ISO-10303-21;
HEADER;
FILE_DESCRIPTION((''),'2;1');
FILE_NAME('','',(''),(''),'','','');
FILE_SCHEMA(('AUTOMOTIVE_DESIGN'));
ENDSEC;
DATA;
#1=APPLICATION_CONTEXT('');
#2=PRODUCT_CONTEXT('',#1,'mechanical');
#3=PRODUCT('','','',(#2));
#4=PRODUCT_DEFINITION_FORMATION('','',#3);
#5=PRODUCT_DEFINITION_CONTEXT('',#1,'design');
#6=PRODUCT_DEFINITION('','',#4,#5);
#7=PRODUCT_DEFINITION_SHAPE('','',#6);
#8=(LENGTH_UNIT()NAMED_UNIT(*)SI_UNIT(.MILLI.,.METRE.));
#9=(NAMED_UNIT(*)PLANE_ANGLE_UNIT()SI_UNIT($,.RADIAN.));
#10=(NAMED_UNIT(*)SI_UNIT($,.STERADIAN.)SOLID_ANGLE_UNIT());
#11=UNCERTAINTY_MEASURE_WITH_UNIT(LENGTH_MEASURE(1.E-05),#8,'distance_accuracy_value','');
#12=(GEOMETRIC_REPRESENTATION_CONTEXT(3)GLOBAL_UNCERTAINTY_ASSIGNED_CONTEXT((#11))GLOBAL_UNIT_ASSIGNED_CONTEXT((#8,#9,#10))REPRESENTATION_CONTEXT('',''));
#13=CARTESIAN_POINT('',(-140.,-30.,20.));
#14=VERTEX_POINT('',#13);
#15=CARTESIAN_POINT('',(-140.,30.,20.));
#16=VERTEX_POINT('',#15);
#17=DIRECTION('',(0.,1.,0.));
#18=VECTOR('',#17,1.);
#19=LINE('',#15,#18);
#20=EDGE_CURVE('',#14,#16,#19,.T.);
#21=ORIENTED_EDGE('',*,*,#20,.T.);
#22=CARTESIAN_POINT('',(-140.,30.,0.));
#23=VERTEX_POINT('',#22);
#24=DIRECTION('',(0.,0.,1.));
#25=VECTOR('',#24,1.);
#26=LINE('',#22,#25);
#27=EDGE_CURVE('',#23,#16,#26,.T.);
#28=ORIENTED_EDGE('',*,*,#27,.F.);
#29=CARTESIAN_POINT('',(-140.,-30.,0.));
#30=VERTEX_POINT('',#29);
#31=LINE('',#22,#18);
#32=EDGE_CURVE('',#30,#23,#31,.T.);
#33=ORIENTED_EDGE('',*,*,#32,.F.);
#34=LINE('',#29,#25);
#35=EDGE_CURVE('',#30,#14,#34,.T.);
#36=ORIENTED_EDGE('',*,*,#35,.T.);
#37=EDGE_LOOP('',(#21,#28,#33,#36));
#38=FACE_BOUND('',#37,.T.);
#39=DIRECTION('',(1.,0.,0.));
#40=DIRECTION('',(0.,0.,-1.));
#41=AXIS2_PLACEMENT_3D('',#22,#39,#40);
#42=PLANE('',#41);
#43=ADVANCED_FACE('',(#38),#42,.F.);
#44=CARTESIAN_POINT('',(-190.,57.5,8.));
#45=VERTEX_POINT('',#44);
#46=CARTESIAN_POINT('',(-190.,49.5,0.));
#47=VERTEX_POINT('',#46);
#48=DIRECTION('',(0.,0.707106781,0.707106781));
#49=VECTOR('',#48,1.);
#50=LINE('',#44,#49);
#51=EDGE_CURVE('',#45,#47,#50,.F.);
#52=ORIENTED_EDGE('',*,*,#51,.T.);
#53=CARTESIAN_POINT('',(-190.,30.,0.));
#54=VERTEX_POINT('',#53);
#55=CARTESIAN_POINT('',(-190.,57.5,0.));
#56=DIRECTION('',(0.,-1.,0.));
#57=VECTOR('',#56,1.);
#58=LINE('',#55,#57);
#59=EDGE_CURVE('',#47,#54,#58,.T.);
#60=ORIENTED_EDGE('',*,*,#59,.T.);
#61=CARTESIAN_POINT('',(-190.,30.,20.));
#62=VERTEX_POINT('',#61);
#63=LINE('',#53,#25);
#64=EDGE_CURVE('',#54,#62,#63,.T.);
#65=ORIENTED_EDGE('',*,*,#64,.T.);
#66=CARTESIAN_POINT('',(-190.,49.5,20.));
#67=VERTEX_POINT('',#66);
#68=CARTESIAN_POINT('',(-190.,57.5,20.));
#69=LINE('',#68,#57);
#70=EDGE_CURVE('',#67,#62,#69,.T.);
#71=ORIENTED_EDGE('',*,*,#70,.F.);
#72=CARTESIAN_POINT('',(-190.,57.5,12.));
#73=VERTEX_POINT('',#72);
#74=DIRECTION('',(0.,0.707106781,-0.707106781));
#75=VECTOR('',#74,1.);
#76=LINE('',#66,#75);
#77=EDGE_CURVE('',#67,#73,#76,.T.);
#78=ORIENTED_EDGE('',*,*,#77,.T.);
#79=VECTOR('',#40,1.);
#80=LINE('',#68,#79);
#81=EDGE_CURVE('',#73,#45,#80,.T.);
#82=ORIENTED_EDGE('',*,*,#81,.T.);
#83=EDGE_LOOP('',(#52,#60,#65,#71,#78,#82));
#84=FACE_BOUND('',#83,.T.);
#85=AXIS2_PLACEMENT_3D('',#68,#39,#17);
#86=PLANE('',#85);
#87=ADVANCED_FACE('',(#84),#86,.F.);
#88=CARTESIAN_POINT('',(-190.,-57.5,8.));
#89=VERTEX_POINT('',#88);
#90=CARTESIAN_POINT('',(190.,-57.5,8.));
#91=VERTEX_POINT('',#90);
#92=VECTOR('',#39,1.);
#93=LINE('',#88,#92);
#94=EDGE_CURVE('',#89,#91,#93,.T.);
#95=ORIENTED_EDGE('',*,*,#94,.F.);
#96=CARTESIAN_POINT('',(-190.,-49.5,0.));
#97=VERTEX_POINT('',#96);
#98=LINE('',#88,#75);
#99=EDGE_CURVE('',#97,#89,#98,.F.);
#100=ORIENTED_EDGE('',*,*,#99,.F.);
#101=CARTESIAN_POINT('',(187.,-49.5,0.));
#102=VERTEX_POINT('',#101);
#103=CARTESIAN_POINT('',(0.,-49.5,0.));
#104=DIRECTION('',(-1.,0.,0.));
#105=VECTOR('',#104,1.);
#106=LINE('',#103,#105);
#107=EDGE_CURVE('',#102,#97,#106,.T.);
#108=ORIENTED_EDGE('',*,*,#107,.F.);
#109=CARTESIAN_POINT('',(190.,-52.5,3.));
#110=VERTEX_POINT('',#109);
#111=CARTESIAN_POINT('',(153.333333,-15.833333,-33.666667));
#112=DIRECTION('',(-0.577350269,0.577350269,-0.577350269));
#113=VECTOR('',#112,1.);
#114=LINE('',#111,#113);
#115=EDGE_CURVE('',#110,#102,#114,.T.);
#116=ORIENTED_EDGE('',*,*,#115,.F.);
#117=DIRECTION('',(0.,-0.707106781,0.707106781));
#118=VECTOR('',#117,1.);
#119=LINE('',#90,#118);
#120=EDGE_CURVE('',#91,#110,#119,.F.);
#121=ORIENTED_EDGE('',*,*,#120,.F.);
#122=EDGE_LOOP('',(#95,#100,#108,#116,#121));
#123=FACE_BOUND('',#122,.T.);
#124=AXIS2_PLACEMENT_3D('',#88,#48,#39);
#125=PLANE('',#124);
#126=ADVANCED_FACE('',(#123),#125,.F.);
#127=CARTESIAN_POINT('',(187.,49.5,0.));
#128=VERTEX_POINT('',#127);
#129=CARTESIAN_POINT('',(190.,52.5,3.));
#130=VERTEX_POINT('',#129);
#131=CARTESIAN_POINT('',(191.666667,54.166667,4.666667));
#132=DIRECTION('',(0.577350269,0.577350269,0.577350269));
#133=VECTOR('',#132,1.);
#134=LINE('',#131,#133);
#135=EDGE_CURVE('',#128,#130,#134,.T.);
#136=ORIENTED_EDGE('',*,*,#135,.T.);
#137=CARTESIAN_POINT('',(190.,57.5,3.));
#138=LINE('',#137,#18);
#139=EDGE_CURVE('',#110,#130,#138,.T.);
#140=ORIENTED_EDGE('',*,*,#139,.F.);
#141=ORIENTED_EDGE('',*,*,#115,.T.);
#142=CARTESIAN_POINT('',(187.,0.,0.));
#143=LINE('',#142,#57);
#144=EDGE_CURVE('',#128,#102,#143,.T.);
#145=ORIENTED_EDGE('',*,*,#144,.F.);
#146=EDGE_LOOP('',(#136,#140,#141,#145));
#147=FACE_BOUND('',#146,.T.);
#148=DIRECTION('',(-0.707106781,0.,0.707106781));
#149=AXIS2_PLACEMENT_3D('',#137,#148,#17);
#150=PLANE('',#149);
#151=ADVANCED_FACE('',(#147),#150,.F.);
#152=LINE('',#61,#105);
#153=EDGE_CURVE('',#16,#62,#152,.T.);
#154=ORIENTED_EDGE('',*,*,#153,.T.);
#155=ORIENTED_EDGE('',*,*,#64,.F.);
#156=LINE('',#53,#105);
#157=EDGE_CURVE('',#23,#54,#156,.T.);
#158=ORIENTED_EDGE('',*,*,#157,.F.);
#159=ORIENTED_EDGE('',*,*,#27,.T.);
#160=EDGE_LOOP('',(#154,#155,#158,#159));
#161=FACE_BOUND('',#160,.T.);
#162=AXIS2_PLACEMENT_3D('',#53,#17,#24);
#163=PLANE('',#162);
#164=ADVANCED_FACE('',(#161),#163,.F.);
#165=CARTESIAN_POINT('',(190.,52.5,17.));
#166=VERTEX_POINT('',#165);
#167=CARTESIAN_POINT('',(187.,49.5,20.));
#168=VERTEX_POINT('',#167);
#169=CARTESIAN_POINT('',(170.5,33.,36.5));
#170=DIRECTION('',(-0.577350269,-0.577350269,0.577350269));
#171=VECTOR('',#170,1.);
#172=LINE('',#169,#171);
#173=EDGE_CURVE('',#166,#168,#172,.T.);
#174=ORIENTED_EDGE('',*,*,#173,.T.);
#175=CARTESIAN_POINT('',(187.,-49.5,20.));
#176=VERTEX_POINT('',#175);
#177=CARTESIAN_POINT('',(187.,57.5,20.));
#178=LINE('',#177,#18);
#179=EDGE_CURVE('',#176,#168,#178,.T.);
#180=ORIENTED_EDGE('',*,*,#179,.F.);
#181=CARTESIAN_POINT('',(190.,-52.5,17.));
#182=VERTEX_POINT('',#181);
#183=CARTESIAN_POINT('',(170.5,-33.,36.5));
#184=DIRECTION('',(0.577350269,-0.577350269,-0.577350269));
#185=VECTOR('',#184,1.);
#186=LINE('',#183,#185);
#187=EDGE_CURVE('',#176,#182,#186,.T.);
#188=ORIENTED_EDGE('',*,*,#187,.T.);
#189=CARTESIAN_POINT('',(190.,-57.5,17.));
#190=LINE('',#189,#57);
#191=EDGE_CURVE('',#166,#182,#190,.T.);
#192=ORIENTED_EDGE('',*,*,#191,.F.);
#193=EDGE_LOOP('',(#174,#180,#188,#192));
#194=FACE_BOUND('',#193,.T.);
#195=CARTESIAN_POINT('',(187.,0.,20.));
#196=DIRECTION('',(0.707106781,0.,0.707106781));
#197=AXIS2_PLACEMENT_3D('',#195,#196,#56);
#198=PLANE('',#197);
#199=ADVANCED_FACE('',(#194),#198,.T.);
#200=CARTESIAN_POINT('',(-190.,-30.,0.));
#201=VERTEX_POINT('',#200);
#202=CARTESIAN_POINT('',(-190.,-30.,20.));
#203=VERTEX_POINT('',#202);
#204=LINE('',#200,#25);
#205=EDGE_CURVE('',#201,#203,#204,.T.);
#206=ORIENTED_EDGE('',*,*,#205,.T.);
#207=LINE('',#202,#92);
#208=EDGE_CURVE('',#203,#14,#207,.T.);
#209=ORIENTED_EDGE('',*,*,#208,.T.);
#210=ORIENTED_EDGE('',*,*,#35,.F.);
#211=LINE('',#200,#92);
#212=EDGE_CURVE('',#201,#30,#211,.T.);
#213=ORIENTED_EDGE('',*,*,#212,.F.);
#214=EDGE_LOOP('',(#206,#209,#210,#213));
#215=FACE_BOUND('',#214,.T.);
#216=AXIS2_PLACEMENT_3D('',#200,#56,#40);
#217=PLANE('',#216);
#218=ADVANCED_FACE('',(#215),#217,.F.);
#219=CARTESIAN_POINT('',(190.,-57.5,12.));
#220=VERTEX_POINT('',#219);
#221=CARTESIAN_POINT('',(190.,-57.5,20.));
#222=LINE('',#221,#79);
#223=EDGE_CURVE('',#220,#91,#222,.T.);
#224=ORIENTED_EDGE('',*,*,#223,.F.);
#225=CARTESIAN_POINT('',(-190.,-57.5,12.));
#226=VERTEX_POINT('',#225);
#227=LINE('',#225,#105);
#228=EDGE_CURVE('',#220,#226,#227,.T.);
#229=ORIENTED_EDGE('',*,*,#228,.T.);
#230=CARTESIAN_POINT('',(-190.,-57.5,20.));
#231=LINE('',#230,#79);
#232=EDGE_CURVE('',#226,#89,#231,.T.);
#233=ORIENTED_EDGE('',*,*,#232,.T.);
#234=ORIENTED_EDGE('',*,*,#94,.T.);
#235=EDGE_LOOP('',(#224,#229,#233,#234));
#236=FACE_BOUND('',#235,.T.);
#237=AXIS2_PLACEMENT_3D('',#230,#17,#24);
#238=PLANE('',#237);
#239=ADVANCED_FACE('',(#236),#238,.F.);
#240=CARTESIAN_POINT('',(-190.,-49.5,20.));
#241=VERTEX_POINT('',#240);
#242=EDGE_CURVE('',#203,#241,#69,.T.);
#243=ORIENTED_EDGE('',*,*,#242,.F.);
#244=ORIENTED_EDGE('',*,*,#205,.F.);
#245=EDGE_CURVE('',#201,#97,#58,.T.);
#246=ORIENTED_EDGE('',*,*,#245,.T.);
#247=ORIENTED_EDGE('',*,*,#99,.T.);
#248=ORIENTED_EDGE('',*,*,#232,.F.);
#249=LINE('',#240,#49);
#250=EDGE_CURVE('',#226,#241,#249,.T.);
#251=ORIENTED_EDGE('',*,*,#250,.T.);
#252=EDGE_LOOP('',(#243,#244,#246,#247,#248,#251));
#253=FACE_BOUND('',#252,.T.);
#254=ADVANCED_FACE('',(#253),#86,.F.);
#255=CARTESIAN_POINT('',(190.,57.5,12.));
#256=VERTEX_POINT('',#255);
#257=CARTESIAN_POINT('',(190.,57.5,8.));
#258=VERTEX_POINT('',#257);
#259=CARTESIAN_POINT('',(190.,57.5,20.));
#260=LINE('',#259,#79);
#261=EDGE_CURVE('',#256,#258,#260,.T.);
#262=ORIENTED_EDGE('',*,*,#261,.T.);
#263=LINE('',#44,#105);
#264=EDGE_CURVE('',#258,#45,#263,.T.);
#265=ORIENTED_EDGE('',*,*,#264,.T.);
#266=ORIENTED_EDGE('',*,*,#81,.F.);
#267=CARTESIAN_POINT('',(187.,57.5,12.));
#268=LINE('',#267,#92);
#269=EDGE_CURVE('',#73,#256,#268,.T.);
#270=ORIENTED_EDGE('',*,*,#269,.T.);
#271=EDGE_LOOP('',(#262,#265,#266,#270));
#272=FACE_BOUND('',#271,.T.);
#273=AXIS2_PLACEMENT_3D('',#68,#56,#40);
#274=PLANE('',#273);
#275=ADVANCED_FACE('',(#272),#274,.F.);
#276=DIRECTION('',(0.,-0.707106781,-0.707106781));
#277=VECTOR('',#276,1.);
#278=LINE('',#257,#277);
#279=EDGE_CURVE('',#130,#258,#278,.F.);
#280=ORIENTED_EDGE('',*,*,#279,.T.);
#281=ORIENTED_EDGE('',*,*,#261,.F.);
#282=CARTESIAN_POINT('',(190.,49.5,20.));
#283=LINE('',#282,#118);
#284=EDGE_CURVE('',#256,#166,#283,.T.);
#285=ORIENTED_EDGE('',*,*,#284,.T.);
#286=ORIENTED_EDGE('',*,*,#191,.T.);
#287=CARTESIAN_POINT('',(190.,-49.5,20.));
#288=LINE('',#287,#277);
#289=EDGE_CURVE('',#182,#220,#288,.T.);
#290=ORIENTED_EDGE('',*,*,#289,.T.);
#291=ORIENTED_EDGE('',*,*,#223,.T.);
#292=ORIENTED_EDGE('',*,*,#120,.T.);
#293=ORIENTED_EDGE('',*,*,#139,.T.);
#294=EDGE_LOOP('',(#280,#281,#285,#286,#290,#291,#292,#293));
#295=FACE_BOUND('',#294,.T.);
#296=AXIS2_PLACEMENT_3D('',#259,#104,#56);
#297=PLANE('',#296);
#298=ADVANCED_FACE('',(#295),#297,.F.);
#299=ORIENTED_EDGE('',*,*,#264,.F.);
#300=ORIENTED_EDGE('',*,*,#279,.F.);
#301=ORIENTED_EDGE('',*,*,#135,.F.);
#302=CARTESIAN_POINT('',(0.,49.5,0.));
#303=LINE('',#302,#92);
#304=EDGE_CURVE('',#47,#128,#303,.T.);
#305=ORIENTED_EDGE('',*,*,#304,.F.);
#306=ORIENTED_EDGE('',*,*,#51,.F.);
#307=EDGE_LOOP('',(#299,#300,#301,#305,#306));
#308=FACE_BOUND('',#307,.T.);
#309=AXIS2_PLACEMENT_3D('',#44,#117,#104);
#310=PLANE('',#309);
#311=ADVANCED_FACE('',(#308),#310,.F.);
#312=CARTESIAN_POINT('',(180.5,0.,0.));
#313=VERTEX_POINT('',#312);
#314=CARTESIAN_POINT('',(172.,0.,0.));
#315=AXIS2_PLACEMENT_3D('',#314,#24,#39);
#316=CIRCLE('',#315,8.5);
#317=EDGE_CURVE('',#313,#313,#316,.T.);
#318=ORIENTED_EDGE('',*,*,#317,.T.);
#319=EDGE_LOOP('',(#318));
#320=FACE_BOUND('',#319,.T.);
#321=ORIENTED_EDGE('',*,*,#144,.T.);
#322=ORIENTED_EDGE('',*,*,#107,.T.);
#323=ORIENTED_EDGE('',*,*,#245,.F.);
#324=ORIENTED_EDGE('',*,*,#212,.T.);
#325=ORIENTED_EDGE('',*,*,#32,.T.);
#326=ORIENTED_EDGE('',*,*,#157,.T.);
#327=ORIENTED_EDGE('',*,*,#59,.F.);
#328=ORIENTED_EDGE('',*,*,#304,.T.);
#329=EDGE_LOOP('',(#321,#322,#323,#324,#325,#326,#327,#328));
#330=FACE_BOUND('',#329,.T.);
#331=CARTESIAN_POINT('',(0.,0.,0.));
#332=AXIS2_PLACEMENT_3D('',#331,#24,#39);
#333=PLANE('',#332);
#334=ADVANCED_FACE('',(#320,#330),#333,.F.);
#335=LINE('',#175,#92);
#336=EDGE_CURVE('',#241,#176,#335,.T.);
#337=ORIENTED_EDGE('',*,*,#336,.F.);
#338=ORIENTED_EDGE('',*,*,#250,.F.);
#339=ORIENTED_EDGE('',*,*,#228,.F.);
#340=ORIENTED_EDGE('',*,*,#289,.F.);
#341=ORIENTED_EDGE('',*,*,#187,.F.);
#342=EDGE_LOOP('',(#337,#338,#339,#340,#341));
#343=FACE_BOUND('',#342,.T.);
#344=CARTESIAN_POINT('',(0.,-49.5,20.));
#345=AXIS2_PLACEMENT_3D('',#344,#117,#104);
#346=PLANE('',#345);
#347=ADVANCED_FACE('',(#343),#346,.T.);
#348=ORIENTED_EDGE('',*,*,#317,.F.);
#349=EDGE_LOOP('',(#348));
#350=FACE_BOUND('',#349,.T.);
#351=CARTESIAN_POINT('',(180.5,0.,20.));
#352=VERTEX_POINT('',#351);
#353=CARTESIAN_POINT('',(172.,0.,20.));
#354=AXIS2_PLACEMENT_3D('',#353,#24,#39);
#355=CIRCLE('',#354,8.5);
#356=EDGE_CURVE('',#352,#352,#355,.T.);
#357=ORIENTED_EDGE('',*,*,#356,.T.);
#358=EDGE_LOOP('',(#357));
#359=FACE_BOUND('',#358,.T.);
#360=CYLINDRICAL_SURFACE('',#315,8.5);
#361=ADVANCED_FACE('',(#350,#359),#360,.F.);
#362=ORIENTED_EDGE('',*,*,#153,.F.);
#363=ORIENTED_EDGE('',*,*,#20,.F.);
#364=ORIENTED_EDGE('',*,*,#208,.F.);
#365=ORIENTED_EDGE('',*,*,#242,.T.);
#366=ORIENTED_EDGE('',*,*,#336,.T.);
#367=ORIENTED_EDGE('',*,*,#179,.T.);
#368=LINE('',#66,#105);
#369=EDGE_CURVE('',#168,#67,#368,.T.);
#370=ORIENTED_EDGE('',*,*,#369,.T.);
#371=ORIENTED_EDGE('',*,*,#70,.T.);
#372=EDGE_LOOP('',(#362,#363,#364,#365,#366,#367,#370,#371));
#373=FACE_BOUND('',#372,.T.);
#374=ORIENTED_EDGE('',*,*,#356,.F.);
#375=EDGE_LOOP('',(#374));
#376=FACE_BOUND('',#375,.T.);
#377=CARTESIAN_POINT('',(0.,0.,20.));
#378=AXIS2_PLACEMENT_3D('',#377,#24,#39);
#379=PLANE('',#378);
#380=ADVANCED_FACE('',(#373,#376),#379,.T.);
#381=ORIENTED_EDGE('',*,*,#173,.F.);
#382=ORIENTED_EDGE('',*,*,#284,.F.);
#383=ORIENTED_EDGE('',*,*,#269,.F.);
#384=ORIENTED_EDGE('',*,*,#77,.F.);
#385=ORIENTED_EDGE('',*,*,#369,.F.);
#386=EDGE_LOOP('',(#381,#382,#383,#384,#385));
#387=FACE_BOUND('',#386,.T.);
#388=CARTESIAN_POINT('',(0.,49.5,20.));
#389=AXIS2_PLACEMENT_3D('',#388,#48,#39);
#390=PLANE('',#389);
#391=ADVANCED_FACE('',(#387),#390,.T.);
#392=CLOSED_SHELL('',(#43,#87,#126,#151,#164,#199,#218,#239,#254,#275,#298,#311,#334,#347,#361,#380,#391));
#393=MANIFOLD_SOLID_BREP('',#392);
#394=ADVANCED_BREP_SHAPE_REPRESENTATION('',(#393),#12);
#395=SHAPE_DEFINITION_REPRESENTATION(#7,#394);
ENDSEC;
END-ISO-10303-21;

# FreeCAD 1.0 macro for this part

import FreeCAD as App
import Part
import Sketcher
from FreeCAD import Vector
Q = App.Units.Quantity


def edges_at(feature, points):
    """Names of the edges that pass closest to the given points."""
    edges = feature.Shape.Edges
    near = lambda p: min(range(len(edges)), key=lambda i: edges[i].distToShape(Part.Vertex(*p))[0])
    return sorted({f"Edge{near(p) + 1}" for p in points})

doc = App.newDocument("Part")
params = doc.addObject("Spreadsheet::Sheet", "Params")
for row, (alias, value) in enumerate([
    ("sketch1_width", "380 mm"),
    ("sketch1_height", "115 mm"),
    ("pad1_length", "20 mm"),
    ("sketch2_diameter", "17 mm"),
    ("pocket1_length", "20 mm"),
    ("chamfer_size", "3 mm"),
    ("sketch3_width", "50 mm"),
    ("sketch3_height", "60 mm"),
    ("chamfer2_size", "8 mm"),
], start=1):
    params.set(f"A{row}", alias)
    params.set(f"B{row}", "=" + value)
    params.setAlias(f"B{row}", alias)

body = doc.addObject("PartDesign::Body", "Body")

sketch1 = body.newObject("Sketcher::SketchObject", "Sketch")
sketch1.AttachmentSupport = (doc.getObject("XY_Plane"), [""])
sketch1.MapMode = "FlatFace"
sketch1.addGeometry([
    Part.LineSegment(Vector(-190, 58, 0), Vector(-190, -58, 0)),
    Part.LineSegment(Vector(-190, -58, 0), Vector(190, -58, 0)),
    Part.LineSegment(Vector(190, -58, 0), Vector(190, 58, 0)),
    Part.LineSegment(Vector(190, 58, 0), Vector(-190, 58, 0)),
], False)
sketch1.addConstraint([
    Sketcher.Constraint("Coincident", 0, 2, 1, 1),
    Sketcher.Constraint("Coincident", 1, 2, 2, 1),
    Sketcher.Constraint("Coincident", 2, 2, 3, 1),
    Sketcher.Constraint("Coincident", 3, 2, 0, 1),
    Sketcher.Constraint("Vertical", 0),
    Sketcher.Constraint("Horizontal", 1),
    Sketcher.Constraint("Vertical", 2),
    Sketcher.Constraint("Horizontal", 3),
    Sketcher.Constraint("Symmetric", 0, 2, 2, 2, -1, 1),
    Sketcher.Constraint("DistanceX", 1, 1, 1, 2, Q("380 mm")),
    Sketcher.Constraint("DistanceY", 0, 2, 0, 1, Q("115 mm")),
])
sketch1.setExpression("Constraints[9]", "Params.sketch1_width")
sketch1.setExpression("Constraints[10]", "Params.sketch1_height")
pad1 = body.newObject("PartDesign::Pad", "Pad")
pad1.Profile = sketch1
pad1.setExpression("Length", "Params.pad1_length")

sketch2 = body.newObject("Sketcher::SketchObject", "Sketch001")
sketch2.AttachmentSupport = (doc.getObject("XY_Plane"), [""])
sketch2.MapMode = "FlatFace"
sketch2.AttachmentOffset = App.Placement(Vector(0, 0, 20), App.Rotation())
sketch2.addGeometry(Part.Circle(Vector(172, 0, 0), Vector(0, 0, 1), 8), False)
sketch2.addConstraint([
    Sketcher.Constraint("PointOnObject", 0, 3, -1),
    Sketcher.Constraint("Diameter", 0, Q("17 mm")),
    Sketcher.Constraint("DistanceX", -1, 1, 0, 3, Q("172 mm")),
])
sketch2.setExpression("Constraints[1]", "Params.sketch2_diameter")
pocket1 = body.newObject("PartDesign::Pocket", "Pocket")
pocket1.Profile = sketch2
pocket1.setExpression("Length", "Params.pocket1_length")
doc.recompute()

chamfer = body.newObject("PartDesign::Chamfer", "Chamfer")
chamfer.Base = (pocket1, edges_at(pocket1, [(190, 0, 20), (190, 0, 0)]))
chamfer.setExpression("Size", "Params.chamfer_size")

sketch3 = body.newObject("Sketcher::SketchObject", "Sketch002")
sketch3.AttachmentSupport = (doc.getObject("XY_Plane"), [""])
sketch3.MapMode = "FlatFace"
sketch3.AttachmentOffset = App.Placement(Vector(0, 0, 20), App.Rotation())
sketch3.addGeometry([
    Part.LineSegment(Vector(-190, 30, 0), Vector(-190, -30, 0)),
    Part.LineSegment(Vector(-190, -30, 0), Vector(-140, -30, 0)),
    Part.LineSegment(Vector(-140, -30, 0), Vector(-140, 30, 0)),
    Part.LineSegment(Vector(-140, 30, 0), Vector(-190, 30, 0)),
], False)
sketch3.addConstraint([
    Sketcher.Constraint("Coincident", 0, 2, 1, 1),
    Sketcher.Constraint("Coincident", 1, 2, 2, 1),
    Sketcher.Constraint("Coincident", 2, 2, 3, 1),
    Sketcher.Constraint("Coincident", 3, 2, 0, 1),
    Sketcher.Constraint("Vertical", 0),
    Sketcher.Constraint("Horizontal", 1),
    Sketcher.Constraint("Vertical", 2),
    Sketcher.Constraint("Horizontal", 3),
    Sketcher.Constraint("DistanceX", 1, 1, 1, 2, Q("50 mm")),
    Sketcher.Constraint("DistanceY", 0, 2, 0, 1, Q("60 mm")),
    Sketcher.Constraint("DistanceX", 0, 2, -1, 1, Q("190 mm")),
    Sketcher.Constraint("DistanceY", 0, 2, -1, 1, Q("30 mm")),
])
sketch3.setExpression("Constraints[8]", "Params.sketch3_width")
sketch3.setExpression("Constraints[9]", "Params.sketch3_height")
pocket2 = body.newObject("PartDesign::Pocket", "Pocket001")
pocket2.Profile = sketch3
pocket2.Type = "ThroughAll"
doc.recompute()

chamfer2 = body.newObject("PartDesign::Chamfer", "Chamfer001")
chamfer2.Base = (pocket2, edges_at(pocket2, [
    (-1.5, 57.5, 20),
    (-1.5, 57.5, 0),
    (-1.5, -57.5, 0),
    (-1.5, -57.5, 20),
]))
chamfer2.setExpression("Size", "Params.chamfer2_size")

doc.recompute()
